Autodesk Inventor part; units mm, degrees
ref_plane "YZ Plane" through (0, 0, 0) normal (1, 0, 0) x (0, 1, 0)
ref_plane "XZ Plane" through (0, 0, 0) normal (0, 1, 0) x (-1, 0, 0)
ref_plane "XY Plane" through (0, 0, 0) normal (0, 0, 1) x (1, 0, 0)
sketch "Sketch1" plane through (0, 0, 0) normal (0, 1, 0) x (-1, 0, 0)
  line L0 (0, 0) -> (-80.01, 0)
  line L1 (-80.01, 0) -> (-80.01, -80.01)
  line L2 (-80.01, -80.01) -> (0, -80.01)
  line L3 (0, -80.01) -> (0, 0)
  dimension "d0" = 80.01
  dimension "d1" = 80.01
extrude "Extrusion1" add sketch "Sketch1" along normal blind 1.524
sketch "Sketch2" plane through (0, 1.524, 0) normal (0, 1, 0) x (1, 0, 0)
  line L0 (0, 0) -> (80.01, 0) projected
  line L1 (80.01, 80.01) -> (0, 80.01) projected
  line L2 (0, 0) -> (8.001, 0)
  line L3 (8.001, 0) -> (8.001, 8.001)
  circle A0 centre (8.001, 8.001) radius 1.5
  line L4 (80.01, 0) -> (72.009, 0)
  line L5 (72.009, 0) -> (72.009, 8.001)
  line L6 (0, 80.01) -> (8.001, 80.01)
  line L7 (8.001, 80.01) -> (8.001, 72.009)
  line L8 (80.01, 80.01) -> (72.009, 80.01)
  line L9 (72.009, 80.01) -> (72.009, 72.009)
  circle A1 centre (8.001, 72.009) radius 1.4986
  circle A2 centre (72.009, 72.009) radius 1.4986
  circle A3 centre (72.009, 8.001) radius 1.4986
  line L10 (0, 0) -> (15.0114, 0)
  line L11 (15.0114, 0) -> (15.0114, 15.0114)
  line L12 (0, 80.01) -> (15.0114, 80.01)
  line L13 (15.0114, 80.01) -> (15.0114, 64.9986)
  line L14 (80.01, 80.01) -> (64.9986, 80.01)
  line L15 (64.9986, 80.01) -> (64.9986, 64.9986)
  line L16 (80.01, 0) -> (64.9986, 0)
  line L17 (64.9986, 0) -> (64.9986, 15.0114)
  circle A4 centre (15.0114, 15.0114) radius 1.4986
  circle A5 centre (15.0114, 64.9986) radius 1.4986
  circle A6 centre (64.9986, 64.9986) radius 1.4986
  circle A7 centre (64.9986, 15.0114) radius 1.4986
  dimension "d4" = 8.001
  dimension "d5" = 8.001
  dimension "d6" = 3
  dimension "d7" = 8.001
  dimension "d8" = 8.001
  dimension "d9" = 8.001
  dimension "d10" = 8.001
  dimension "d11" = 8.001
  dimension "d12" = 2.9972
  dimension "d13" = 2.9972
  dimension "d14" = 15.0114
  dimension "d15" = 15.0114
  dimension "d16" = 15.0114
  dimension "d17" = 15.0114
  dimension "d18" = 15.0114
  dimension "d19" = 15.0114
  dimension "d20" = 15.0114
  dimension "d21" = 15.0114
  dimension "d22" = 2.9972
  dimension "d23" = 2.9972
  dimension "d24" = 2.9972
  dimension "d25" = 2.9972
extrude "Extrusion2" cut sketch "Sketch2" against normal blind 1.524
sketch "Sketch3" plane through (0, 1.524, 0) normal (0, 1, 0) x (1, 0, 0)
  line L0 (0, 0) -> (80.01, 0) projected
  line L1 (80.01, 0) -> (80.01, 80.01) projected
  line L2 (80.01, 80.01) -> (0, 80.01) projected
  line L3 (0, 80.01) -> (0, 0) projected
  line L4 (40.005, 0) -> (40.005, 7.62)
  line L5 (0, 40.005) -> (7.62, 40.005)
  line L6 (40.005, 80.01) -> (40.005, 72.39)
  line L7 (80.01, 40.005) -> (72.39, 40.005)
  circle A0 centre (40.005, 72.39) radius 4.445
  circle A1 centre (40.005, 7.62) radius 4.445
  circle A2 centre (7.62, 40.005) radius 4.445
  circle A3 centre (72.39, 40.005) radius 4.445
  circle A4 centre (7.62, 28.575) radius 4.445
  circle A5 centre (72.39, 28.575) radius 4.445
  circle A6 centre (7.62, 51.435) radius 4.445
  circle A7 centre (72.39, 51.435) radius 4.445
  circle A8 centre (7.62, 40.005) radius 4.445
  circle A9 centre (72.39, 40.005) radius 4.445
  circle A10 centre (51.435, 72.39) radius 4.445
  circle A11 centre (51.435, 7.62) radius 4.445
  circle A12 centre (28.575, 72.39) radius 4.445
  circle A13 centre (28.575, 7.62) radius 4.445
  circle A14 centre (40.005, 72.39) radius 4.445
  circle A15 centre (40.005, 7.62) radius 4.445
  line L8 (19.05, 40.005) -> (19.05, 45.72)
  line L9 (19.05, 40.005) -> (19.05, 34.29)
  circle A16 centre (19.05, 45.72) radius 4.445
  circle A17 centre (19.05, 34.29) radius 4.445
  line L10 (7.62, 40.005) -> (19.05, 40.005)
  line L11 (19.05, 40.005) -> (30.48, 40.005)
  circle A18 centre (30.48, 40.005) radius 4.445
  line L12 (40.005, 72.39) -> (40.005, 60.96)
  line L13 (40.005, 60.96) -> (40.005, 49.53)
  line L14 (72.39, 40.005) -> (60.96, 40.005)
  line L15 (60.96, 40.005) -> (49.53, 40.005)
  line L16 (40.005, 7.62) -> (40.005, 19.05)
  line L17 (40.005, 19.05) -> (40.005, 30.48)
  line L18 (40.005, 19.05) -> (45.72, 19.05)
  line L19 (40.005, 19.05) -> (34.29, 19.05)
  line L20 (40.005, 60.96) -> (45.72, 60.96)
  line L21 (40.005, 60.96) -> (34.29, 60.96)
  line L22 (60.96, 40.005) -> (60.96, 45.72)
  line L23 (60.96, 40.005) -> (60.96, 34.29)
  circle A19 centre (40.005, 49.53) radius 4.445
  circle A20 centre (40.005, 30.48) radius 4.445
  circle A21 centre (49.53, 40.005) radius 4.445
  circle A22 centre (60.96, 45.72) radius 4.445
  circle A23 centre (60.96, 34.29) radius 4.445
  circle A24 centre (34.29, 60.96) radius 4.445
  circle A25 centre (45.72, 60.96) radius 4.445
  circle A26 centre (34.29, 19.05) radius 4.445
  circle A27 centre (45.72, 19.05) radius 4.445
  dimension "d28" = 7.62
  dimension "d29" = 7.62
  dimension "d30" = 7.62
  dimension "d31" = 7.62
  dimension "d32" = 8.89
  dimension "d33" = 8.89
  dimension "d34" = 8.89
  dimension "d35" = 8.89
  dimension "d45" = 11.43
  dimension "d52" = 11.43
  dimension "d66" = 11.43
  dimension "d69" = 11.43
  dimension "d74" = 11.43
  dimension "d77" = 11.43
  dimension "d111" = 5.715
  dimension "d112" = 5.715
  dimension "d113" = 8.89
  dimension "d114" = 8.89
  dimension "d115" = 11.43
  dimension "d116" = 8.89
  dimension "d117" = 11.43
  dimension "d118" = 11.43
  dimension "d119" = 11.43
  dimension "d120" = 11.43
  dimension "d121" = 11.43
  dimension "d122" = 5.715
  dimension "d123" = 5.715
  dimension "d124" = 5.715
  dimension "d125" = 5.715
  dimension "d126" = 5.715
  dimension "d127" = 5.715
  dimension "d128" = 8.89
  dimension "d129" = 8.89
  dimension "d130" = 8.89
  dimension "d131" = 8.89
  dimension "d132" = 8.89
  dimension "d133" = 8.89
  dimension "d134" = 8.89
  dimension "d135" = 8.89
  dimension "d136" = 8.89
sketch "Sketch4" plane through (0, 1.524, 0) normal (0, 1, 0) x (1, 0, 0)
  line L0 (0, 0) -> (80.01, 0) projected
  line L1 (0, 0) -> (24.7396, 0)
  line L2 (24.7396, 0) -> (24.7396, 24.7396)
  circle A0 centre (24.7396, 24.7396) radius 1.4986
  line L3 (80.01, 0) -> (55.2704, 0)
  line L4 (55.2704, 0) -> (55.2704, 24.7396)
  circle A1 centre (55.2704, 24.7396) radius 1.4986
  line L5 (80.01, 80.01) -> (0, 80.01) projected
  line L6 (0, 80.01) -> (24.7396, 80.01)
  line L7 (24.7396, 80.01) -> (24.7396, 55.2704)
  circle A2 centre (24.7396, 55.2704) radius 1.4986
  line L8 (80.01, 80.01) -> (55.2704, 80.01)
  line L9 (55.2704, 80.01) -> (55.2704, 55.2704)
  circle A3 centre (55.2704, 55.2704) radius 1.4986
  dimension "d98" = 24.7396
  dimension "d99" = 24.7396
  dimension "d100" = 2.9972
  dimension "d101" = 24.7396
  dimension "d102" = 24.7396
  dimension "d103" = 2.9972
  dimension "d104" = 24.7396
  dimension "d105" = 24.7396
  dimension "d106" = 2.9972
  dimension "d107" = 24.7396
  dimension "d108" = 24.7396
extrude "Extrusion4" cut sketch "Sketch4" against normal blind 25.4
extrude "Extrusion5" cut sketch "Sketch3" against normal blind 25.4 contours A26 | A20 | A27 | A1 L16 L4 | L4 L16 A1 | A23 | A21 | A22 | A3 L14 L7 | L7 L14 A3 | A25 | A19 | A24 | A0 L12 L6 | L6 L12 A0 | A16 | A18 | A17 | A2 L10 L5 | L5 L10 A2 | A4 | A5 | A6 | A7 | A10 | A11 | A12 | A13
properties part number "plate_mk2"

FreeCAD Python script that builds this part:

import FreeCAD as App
import Part
import Sketcher

V = App.Vector
Q = App.Units.Quantity

doc = App.newDocument("Part")
params = doc.addObject("Spreadsheet::Sheet", "Params")
for row, (alias, value) in enumerate([
    ("sketch1_width", "3.15 in"),
    ("pad1_length", "0.06 in"),
    ("sketch2_diameter", "0.118 in"),
    ("pocket1_length", "0.06 in"),
    ("sketch3_diameter", "0.118 in"),
    ("pocket2_length", "1 in"),
    ("sketch4_diameter", "0.35 in"),
    ("pocket3_length", "1 in"),
], start=1):
    params.set(f"A{row}", alias)
    params.set(f"B{row}", "=" + value)
    params.setAlias(f"B{row}", alias)

body = doc.addObject("PartDesign::Body", "Body")

# Sketch on XZ plane
sketch1 = body.newObject("Sketcher::SketchObject", "Sketch")
sketch1.AttachmentSupport = (doc.getObject("XZ_Plane"), [""])
sketch1.MapMode = "FlatFace"
sketch1.addGeometry(Part.LineSegment(V(0, -80, 0), V(0, 0, 0)), False)
sketch1.addGeometry(Part.LineSegment(V(0, 0, 0), V(80, 0, 0)), False)
sketch1.addGeometry(Part.LineSegment(V(80, 0, 0), V(80, -80, 0)), False)
sketch1.addGeometry(Part.LineSegment(V(80, -80, 0), V(0, -80, 0)), False)
sketch1.addConstraint(Sketcher.Constraint("Coincident", 0, 2, 1, 1))
sketch1.addConstraint(Sketcher.Constraint("Coincident", 1, 2, 2, 1))
sketch1.addConstraint(Sketcher.Constraint("Coincident", 2, 2, 3, 1))
sketch1.addConstraint(Sketcher.Constraint("Coincident", 3, 2, 0, 1))
sketch1.addConstraint(Sketcher.Constraint("Vertical", 0))
sketch1.addConstraint(Sketcher.Constraint("Horizontal", 1))
sketch1.addConstraint(Sketcher.Constraint("Vertical", 2))
sketch1.addConstraint(Sketcher.Constraint("Horizontal", 3))
sketch1.addConstraint(Sketcher.Constraint("Coincident", 0, 2, -1, 1))
sketch1.addConstraint(Sketcher.Constraint("Equal", 3, 0))
sketch1.addConstraint(Sketcher.Constraint("DistanceX", 1, 1, 1, 2, Q("3.15 in")))
sketch1.setExpression("Constraints[10]", "Params.sketch1_width")
pad1 = body.newObject("PartDesign::Pad", "Pad")
pad1.Profile = sketch1
pad1.setExpression("Length", "Params.pad1_length")
pad1.Reversed = True

# Sketch on XZ plane
sketch2 = body.newObject("Sketcher::SketchObject", "Sketch001")
sketch2.AttachmentSupport = (doc.getObject("XZ_Plane"), [""])
sketch2.MapMode = "FlatFace"
sketch2.AttachmentOffset = App.Placement(V(0, 0, -0.06 * 25.4), App.Rotation())
sketch2.addGeometry(Part.Circle(V(15, -15, 0), V(0, 0, 1), 1.5), False)
sketch2.addGeometry(Part.Circle(V(65, -15, 0), V(0, 0, 1), 1.5), False)
sketch2.addGeometry(Part.Circle(V(72, -8, 0), V(0, 0, 1), 1.5), False)
sketch2.addGeometry(Part.Circle(V(8, -8, 0), V(0, 0, 1), 1.5), False)
sketch2.addGeometry(Part.Circle(V(65, -65, 0), V(0, 0, 1), 1.5), False)
sketch2.addGeometry(Part.Circle(V(15, -65, 0), V(0, 0, 1), 1.5), False)
sketch2.addGeometry(Part.Circle(V(8, -72, 0), V(0, 0, 1), 1.5), False)
sketch2.addGeometry(Part.Circle(V(72, -72, 0), V(0, 0, 1), 1.5), False)
sketch2.addConstraint(Sketcher.Constraint("Equal", 0, 1))
sketch2.addConstraint(Sketcher.Constraint("Equal", 1, 2))
sketch2.addConstraint(Sketcher.Constraint("Equal", 2, 4))
sketch2.addConstraint(Sketcher.Constraint("Equal", 4, 5))
sketch2.addConstraint(Sketcher.Constraint("Equal", 5, 6))
sketch2.addConstraint(Sketcher.Constraint("Equal", 6, 7))
sketch2.addConstraint(Sketcher.Constraint("Horizontal", 0, 3, 1, 3))
sketch2.addConstraint(Sketcher.Constraint("Horizontal", 2, 3, 3, 3))
sketch2.addConstraint(Sketcher.Constraint("Horizontal", 4, 3, 5, 3))
sketch2.addConstraint(Sketcher.Constraint("Horizontal", 6, 3, 7, 3))
sketch2.addConstraint(Sketcher.Constraint("Vertical", 1, 3, 4, 3))
sketch2.addConstraint(Sketcher.Constraint("Vertical", 0, 3, 5, 3))
sketch2.addConstraint(Sketcher.Constraint("Vertical", 3, 3, 6, 3))
sketch2.addConstraint(Sketcher.Constraint("Vertical", 2, 3, 7, 3))
sketch2.addConstraint(Sketcher.Constraint("Diameter", 0, Q("0.118 in")))
sketch2.addConstraint(Sketcher.Constraint("Diameter", 3, Q("0.1181 in")))
sketch2.addConstraint(Sketcher.Constraint("DistanceX", -1, 1, 0, 3, Q("0.591 in")))
sketch2.addConstraint(Sketcher.Constraint("DistanceY", 0, 3, -1, 1, Q("0.591 in")))
sketch2.addConstraint(Sketcher.Constraint("DistanceY", 2, 3, -1, 1, Q("0.315 in")))
sketch2.addConstraint(Sketcher.Constraint("DistanceX", -1, 1, 3, 3, Q("0.315 in")))
sketch2.addConstraint(Sketcher.Constraint("DistanceX", 3, 3, 2, 3, Q("2.52 in")))
sketch2.addConstraint(Sketcher.Constraint("DistanceY", 6, 3, 3, 3, Q("2.52 in")))
sketch2.addConstraint(Sketcher.Constraint("DistanceX", -1, 1, 1, 3, Q("2.559 in")))
sketch2.addConstraint(Sketcher.Constraint("DistanceY", 4, 3, -1, 1, Q("2.559 in")))
sketch2.setExpression("Constraints[14]", "Params.sketch2_diameter")
pocket1 = body.newObject("PartDesign::Pocket", "Pocket")
pocket1.Profile = sketch2
pocket1.setExpression("Length", "Params.pocket1_length")
pocket1.Reversed = True

# Sketch on XZ plane
sketch3 = body.newObject("Sketcher::SketchObject", "Sketch002")
sketch3.AttachmentSupport = (doc.getObject("XZ_Plane"), [""])
sketch3.MapMode = "FlatFace"
sketch3.AttachmentOffset = App.Placement(V(0, 0, -0.06 * 25.4), App.Rotation())
sketch3.addGeometry(Part.Circle(V(55.3, -24.7, 0), V(0, 0, 1), 1.5), False)
sketch3.addGeometry(Part.Circle(V(24.7, -24.7, 0), V(0, 0, 1), 1.5), False)
sketch3.addGeometry(Part.Circle(V(24.7, -55.3, 0), V(0, 0, 1), 1.5), False)
sketch3.addGeometry(Part.Circle(V(55.3, -55.3, 0), V(0, 0, 1), 1.5), False)
sketch3.addConstraint(Sketcher.Constraint("Equal", 0, 1))
sketch3.addConstraint(Sketcher.Constraint("Equal", 1, 2))
sketch3.addConstraint(Sketcher.Constraint("Equal", 2, 3))
sketch3.addConstraint(Sketcher.Constraint("Horizontal", 0, 3, 1, 3))
sketch3.addConstraint(Sketcher.Constraint("Horizontal", 2, 3, 3, 3))
sketch3.addConstraint(Sketcher.Constraint("Vertical", 1, 3, 2, 3))
sketch3.addConstraint(Sketcher.Constraint("Vertical", 0, 3, 3, 3))
sketch3.addConstraint(Sketcher.Constraint("Diameter", 0, Q("0.118 in")))
sketch3.addConstraint(Sketcher.Constraint("DistanceY", 0, 3, -1, 1, Q("0.974 in")))
sketch3.addConstraint(Sketcher.Constraint("DistanceX", -1, 1, 1, 3, Q("0.974 in")))
sketch3.addConstraint(Sketcher.Constraint("DistanceX", -1, 1, 0, 3, Q("2.176 in")))
sketch3.addConstraint(Sketcher.Constraint("DistanceY", 2, 3, -1, 1, Q("2.176 in")))
sketch3.setExpression("Constraints[7]", "Params.sketch3_diameter")
pocket2 = body.newObject("PartDesign::Pocket", "Pocket001")
pocket2.Profile = sketch3
pocket2.setExpression("Length", "Params.pocket2_length")
pocket2.Reversed = True

# Sketch on XZ plane
sketch4 = body.newObject("Sketcher::SketchObject", "Sketch003")
sketch4.AttachmentSupport = (doc.getObject("XZ_Plane"), [""])
sketch4.MapMode = "FlatFace"
sketch4.AttachmentOffset = App.Placement(V(0, 0, -0.06 * 25.4), App.Rotation())
sketch4.addGeometry(Part.Circle(V(34.3, -19.1, 0), V(0, 0, 1), 4.4), False)
sketch4.addGeometry(Part.Circle(V(40, -30.5, 0), V(0, 0, 1), 4.4), False)
sketch4.addGeometry(Part.Circle(V(45.7, -19.1, 0), V(0, 0, 1), 4.4), False)
sketch4.addGeometry(Part.Circle(V(40, -7.6, 0), V(0, 0, 1), 4.4), False)
sketch4.addGeometry(Part.Circle(V(61, -34.3, 0), V(0, 0, 1), 4.4), False)
sketch4.addGeometry(Part.Circle(V(49.5, -40, 0), V(0, 0, 1), 4.4), False)
sketch4.addGeometry(Part.Circle(V(61, -45.7, 0), V(0, 0, 1), 4.4), False)
sketch4.addGeometry(Part.Circle(V(72.4, -40, 0), V(0, 0, 1), 4.4), False)
sketch4.addGeometry(Part.Circle(V(45.7, -61, 0), V(0, 0, 1), 4.4), False)
sketch4.addGeometry(Part.Circle(V(40, -49.5, 0), V(0, 0, 1), 4.4), False)
sketch4.addGeometry(Part.Circle(V(34.3, -61, 0), V(0, 0, 1), 4.4), False)
sketch4.addGeometry(Part.Circle(V(40, -72.4, 0), V(0, 0, 1), 4.4), False)
sketch4.addGeometry(Part.Circle(V(19.1, -45.7, 0), V(0, 0, 1), 4.4), False)
sketch4.addGeometry(Part.Circle(V(30.5, -40, 0), V(0, 0, 1), 4.4), False)
sketch4.addGeometry(Part.Circle(V(19.1, -34.3, 0), V(0, 0, 1), 4.4), False)
sketch4.addGeometry(Part.Circle(V(7.6, -40, 0), V(0, 0, 1), 4.4), False)
sketch4.addGeometry(Part.Circle(V(7.6, -28.6, 0), V(0, 0, 1), 4.4), False)
sketch4.addGeometry(Part.Circle(V(72.4, -28.6, 0), V(0, 0, 1), 4.4), False)
sketch4.addGeometry(Part.Circle(V(7.6, -51.4, 0), V(0, 0, 1), 4.4), False)
sketch4.addGeometry(Part.Circle(V(72.4, -51.4, 0), V(0, 0, 1), 4.4), False)
sketch4.addGeometry(Part.Circle(V(51.4, -72.4, 0), V(0, 0, 1), 4.4), False)
sketch4.addGeometry(Part.Circle(V(51.4, -7.6, 0), V(0, 0, 1), 4.4), False)
sketch4.addGeometry(Part.Circle(V(28.6, -72.4, 0), V(0, 0, 1), 4.4), False)
sketch4.addGeometry(Part.Circle(V(28.6, -7.6, 0), V(0, 0, 1), 4.4), False)
sketch4.addConstraint(Sketcher.Constraint("Equal", 0, 1))
sketch4.addConstraint(Sketcher.Constraint("Equal", 1, 2))
sketch4.addConstraint(Sketcher.Constraint("Equal", 2, 3))
sketch4.addConstraint(Sketcher.Constraint("Equal", 3, 4))
sketch4.addConstraint(Sketcher.Constraint("Equal", 4, 5))
sketch4.addConstraint(Sketcher.Constraint("Equal", 5, 6))
sketch4.addConstraint(Sketcher.Constraint("Equal", 6, 7))
sketch4.addConstraint(Sketcher.Constraint("Equal", 7, 8))
sketch4.addConstraint(Sketcher.Constraint("Equal", 8, 9))
sketch4.addConstraint(Sketcher.Constraint("Equal", 9, 10))
sketch4.addConstraint(Sketcher.Constraint("Equal", 10, 11))
sketch4.addConstraint(Sketcher.Constraint("Equal", 11, 12))
sketch4.addConstraint(Sketcher.Constraint("Equal", 12, 13))
sketch4.addConstraint(Sketcher.Constraint("Equal", 13, 14))
sketch4.addConstraint(Sketcher.Constraint("Equal", 14, 15))
sketch4.addConstraint(Sketcher.Constraint("Equal", 15, 16))
sketch4.addConstraint(Sketcher.Constraint("Equal", 16, 17))
sketch4.addConstraint(Sketcher.Constraint("Equal", 17, 18))
sketch4.addConstraint(Sketcher.Constraint("Equal", 18, 19))
sketch4.addConstraint(Sketcher.Constraint("Equal", 19, 20))
sketch4.addConstraint(Sketcher.Constraint("Equal", 20, 21))
sketch4.addConstraint(Sketcher.Constraint("Equal", 21, 22))
sketch4.addConstraint(Sketcher.Constraint("Equal", 22, 23))
sketch4.addConstraint(Sketcher.Constraint("Horizontal", 0, 3, 2, 3))
sketch4.addConstraint(Sketcher.Constraint("Horizontal", 5, 3, 7, 3))
sketch4.addConstraint(Sketcher.Constraint("Horizontal", 8, 3, 10, 3))
sketch4.addConstraint(Sketcher.Constraint("Horizontal", 6, 3, 12, 3))
sketch4.addConstraint(Sketcher.Constraint("Horizontal", 7, 3, 13, 3))
sketch4.addConstraint(Sketcher.Constraint("Horizontal", 4, 3, 14, 3))
sketch4.addConstraint(Sketcher.Constraint("Horizontal", 13, 3, 15, 3))
sketch4.addConstraint(Sketcher.Constraint("Horizontal", 16, 3, 17, 3))
sketch4.addConstraint(Sketcher.Constraint("Horizontal", 18, 3, 19, 3))
sketch4.addConstraint(Sketcher.Constraint("Horizontal", 11, 3, 20, 3))
sketch4.addConstraint(Sketcher.Constraint("Horizontal", 3, 3, 21, 3))
sketch4.addConstraint(Sketcher.Constraint("Horizontal", 20, 3, 22, 3))
sketch4.addConstraint(Sketcher.Constraint("Horizontal", 21, 3, 23, 3))
sketch4.addConstraint(Sketcher.Constraint("Vertical", 1, 3, 3, 3))
sketch4.addConstraint(Sketcher.Constraint("Vertical", 4, 3, 6, 3))
sketch4.addConstraint(Sketcher.Constraint("Vertical", 2, 3, 8, 3))
sketch4.addConstraint(Sketcher.Constraint("Vertical", 3, 3, 9, 3))
sketch4.addConstraint(Sketcher.Constraint("Vertical", 0, 3, 10, 3))
sketch4.addConstraint(Sketcher.Constraint("Vertical", 9, 3, 11, 3))
sketch4.addConstraint(Sketcher.Constraint("Vertical", 12, 3, 14, 3))
sketch4.addConstraint(Sketcher.Constraint("Vertical", 15, 3, 16, 3))
sketch4.addConstraint(Sketcher.Constraint("Vertical", 7, 3, 17, 3))
sketch4.addConstraint(Sketcher.Constraint("Vertical", 16, 3, 18, 3))
sketch4.addConstraint(Sketcher.Constraint("Vertical", 17, 3, 19, 3))
sketch4.addConstraint(Sketcher.Constraint("Vertical", 20, 3, 21, 3))
sketch4.addConstraint(Sketcher.Constraint("Vertical", 22, 3, 23, 3))
sketch4.addConstraint(Sketcher.Constraint("Diameter", 0, Q("0.35 in")))
sketch4.addConstraint(Sketcher.Constraint("DistanceY", 3, 3, -1, 1, Q("0.3 in")))
sketch4.addConstraint(Sketcher.Constraint("DistanceX", -1, 1, 15, 3, Q("0.3 in")))
sketch4.addConstraint(Sketcher.Constraint("DistanceY", 1, 3, 0, 3, Q("0.45 in")))
sketch4.addConstraint(Sketcher.Constraint("DistanceX", 0, 3, 2, 3, Q("0.45 in")))
sketch4.addConstraint(Sketcher.Constraint("DistanceY", 2, 3, 3, 3, Q("0.45 in")))
sketch4.addConstraint(Sketcher.Constraint("DistanceX", 5, 3, 4, 3, Q("0.45 in")))
sketch4.addConstraint(Sketcher.Constraint("DistanceY", 6, 3, 4, 3, Q("0.45 in")))
sketch4.addConstraint(Sketcher.Constraint("DistanceX", 6, 3, 7, 3, Q("0.45 in")))
sketch4.addConstraint(Sketcher.Constraint("DistanceY", 8, 3, 9, 3, Q("0.45 in")))
sketch4.addConstraint(Sketcher.Constraint("DistanceY", 11, 3, 8, 3, Q("0.45 in")))
sketch4.addConstraint(Sketcher.Constraint("DistanceX", 12, 3, 13, 3, Q("0.45 in")))
sketch4.addConstraint(Sketcher.Constraint("DistanceX", 15, 3, 12, 3, Q("0.45 in")))
sketch4.addConstraint(Sketcher.Constraint("DistanceY", 15, 3, 16, 3, Q("0.45 in")))
sketch4.addConstraint(Sketcher.Constraint("DistanceY", 18, 3, 15, 3, Q("0.45 in")))
sketch4.addConstraint(Sketcher.Constraint("DistanceX", 11, 3, 20, 3, Q("0.45 in")))
sketch4.addConstraint(Sketcher.Constraint("DistanceX", 22, 3, 11, 3, Q("0.45 in")))
sketch4.addConstraint(Sketcher.Constraint("DistanceX", 0, 3, 1, 3, Q("0.225 in")))
sketch4.addConstraint(Sketcher.Constraint("DistanceY", 5, 3, 4, 3, Q("0.225 in")))
sketch4.addConstraint(Sketcher.Constraint("DistanceX", -1, 1, 2, 3, Q("1.8 in")))
sketch4.addConstraint(Sketcher.Constraint("DistanceX", -1, 1, 4, 3, Q("2.4 in")))
sketch4.addConstraint(Sketcher.Constraint("DistanceY", 6, 3, -1, 1, Q("1.8 in")))
sketch4.addConstraint(Sketcher.Constraint("DistanceY", 8, 3, -1, 1, Q("2.4 in")))
sketch4.setExpression("Constraints[49]", "Params.sketch4_diameter")
pocket3 = body.newObject("PartDesign::Pocket", "Pocket002")
pocket3.Profile = sketch4
pocket3.setExpression("Length", "Params.pocket3_length")
pocket3.Reversed = True

doc.recompute()
